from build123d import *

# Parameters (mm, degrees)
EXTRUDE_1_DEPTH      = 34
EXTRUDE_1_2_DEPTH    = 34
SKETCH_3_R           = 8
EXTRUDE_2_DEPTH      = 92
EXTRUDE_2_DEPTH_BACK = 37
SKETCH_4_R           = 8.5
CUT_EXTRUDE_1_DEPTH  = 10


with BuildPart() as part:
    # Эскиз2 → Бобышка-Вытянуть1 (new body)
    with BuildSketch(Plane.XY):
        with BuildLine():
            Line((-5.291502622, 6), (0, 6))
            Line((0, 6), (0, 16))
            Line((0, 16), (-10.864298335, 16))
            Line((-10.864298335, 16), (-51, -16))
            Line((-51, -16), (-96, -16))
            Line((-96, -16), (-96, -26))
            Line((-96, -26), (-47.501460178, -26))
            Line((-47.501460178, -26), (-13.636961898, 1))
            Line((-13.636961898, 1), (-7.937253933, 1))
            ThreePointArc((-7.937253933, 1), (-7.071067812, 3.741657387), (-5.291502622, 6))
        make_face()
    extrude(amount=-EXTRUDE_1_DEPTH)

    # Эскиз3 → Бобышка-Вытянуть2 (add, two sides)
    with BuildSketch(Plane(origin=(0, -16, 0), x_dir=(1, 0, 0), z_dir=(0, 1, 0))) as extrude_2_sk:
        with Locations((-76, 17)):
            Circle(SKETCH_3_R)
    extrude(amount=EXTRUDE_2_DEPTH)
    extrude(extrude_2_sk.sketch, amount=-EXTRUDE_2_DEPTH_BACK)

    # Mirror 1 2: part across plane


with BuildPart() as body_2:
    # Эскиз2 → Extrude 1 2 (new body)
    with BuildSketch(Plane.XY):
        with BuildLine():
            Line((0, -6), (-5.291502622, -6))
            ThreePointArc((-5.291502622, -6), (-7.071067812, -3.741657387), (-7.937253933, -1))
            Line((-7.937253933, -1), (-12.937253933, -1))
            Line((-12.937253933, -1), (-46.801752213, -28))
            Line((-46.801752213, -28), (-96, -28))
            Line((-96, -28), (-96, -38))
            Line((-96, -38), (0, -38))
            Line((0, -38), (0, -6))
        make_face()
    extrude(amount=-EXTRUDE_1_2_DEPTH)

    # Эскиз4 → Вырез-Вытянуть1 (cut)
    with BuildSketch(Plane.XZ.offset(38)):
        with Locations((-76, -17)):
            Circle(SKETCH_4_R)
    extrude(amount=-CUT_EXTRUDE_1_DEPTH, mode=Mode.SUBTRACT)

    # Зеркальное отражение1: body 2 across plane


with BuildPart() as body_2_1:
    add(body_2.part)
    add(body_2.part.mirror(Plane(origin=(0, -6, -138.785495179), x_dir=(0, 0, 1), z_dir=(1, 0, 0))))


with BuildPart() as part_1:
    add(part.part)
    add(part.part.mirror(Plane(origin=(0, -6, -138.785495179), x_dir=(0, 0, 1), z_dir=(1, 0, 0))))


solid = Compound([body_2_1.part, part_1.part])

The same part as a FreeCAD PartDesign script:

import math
import FreeCAD as App
import Part
import Sketcher
Q = App.Units.Quantity

doc = App.newDocument("Part")
body = doc.addObject("PartDesign::Body", "Body")

# Sketch on XY plane
sketch1 = body.newObject("Sketcher::SketchObject", "Sketch")
sketch1.AttachmentSupport = (doc.getObject("XY_Plane"), [""])
sketch1.MapMode = "FlatFace"
sketch1.addGeometry(Part.LineSegment(App.Vector(-5, 6, 0), App.Vector(0, 6, 0)), False)
sketch1.addGeometry(Part.LineSegment(App.Vector(0, 6, 0), App.Vector(0, 16, 0)), False)
sketch1.addGeometry(Part.LineSegment(App.Vector(0, 16, 0), App.Vector(-11, 16, 0)), False)
sketch1.addGeometry(Part.LineSegment(App.Vector(-11, 16, 0), App.Vector(-51, -16, 0)), False)
sketch1.addGeometry(Part.LineSegment(App.Vector(-51, -16, 0), App.Vector(-96, -16, 0)), False)
sketch1.addGeometry(Part.LineSegment(App.Vector(-96, -16, 0), App.Vector(-96, -26, 0)), False)
sketch1.addGeometry(Part.LineSegment(App.Vector(-96, -26, 0), App.Vector(-48, -26, 0)), False)
sketch1.addGeometry(Part.LineSegment(App.Vector(-48, -26, 0), App.Vector(-14, 1, 0)), False)
sketch1.addGeometry(Part.LineSegment(App.Vector(-14, 1, 0), App.Vector(-8, 1, 0)), False)
sketch1.addGeometry(Part.ArcOfCircle(Part.Circle(App.Vector(0, 0, 0), App.Vector(0, 0, 1), 8), math.radians(131), math.radians(173)), False)
sketch1.addConstraint(Sketcher.Constraint("Coincident", 0, 2, 1, 1))
sketch1.addConstraint(Sketcher.Constraint("Coincident", 1, 2, 2, 1))
sketch1.addConstraint(Sketcher.Constraint("Coincident", 2, 2, 3, 1))
sketch1.addConstraint(Sketcher.Constraint("Coincident", 3, 2, 4, 1))
sketch1.addConstraint(Sketcher.Constraint("Coincident", 4, 2, 5, 1))
sketch1.addConstraint(Sketcher.Constraint("Coincident", 5, 2, 6, 1))
sketch1.addConstraint(Sketcher.Constraint("Coincident", 6, 2, 7, 1))
sketch1.addConstraint(Sketcher.Constraint("Coincident", 7, 2, 8, 1))
sketch1.addConstraint(Sketcher.Constraint("Coincident", 8, 2, 9, 2))
sketch1.addConstraint(Sketcher.Constraint("Coincident", 9, 1, 0, 1))
sketch1.addConstraint(Sketcher.Constraint("Horizontal", 0))
sketch1.addConstraint(Sketcher.Constraint("Vertical", 1))
sketch1.addConstraint(Sketcher.Constraint("Horizontal", 2))
sketch1.addConstraint(Sketcher.Constraint("Horizontal", 4))
sketch1.addConstraint(Sketcher.Constraint("Vertical", 5))
sketch1.addConstraint(Sketcher.Constraint("Horizontal", 6))
sketch1.addConstraint(Sketcher.Constraint("Horizontal", 8))
sketch1.addConstraint(Sketcher.Constraint("Coincident", 9, 3, -1, 1))
sketch1.addConstraint(Sketcher.Constraint("PointOnObject", 0, 2, -2))
sketch1.addConstraint(Sketcher.Constraint("Parallel", 3, 7))
sketch1.addConstraint(Sketcher.Constraint("Equal", 1, 5))
sketch1.addConstraint(Sketcher.Constraint("Radius", 9, Q("8 mm")))
sketch1.addConstraint(Sketcher.Constraint("DistanceX", 4, 2, 4, 1, Q("45 mm")))
sketch1.addConstraint(Sketcher.Constraint("DistanceY", 1, 1, 1, 2, Q("10 mm")))
sketch1.addConstraint(Sketcher.Constraint("DistanceY", -1, 1, 0, 2, Q("6 mm")))
sketch1.addConstraint(Sketcher.Constraint("DistanceX", 3, 2, -1, 1, Q("51 mm")))
sketch1.addConstraint(Sketcher.Constraint("DistanceY", 3, 2, -1, 1, Q("16 mm")))
sketch1.addConstraint(Sketcher.Constraint("DistanceY", -1, 1, 7, 2, Q("1 mm")))
sketch1.addConstraint(Sketcher.Constraint("DistanceX", 2, 2, 2, 1, Q("10.864298 mm")))
sketch1.addConstraint(Sketcher.Constraint("DistanceX", 6, 1, 6, 2, Q("48.49854 mm")))
pad1 = body.newObject("PartDesign::Pad", "Pad")
pad1.Profile = sketch1
pad1.Length = 34
pad1.Reversed = True

# Sketch on XZ plane
sketch2 = body.newObject("Sketcher::SketchObject", "Sketch001")
sketch2.AttachmentSupport = (doc.getObject("XZ_Plane"), [""])
sketch2.MapMode = "FlatFace"
sketch2.AttachmentOffset = App.Placement(App.Vector(0, 0, 16), App.Rotation())
sketch2.addGeometry(Part.Circle(App.Vector(-76, -17, 0), App.Vector(0, 0, 1), 8), False)
sketch2.addConstraint(Sketcher.Constraint("Diameter", 0, Q("16 mm")))
sketch2.addConstraint(Sketcher.Constraint("DistanceX", 0, 3, -1, 1, Q("76 mm")))
sketch2.addConstraint(Sketcher.Constraint("DistanceY", 0, 3, -1, 1, Q("17 mm")))
pad2 = body.newObject("PartDesign::Pad", "Pad001")
pad2.Profile = sketch2
pad2.Type = "TwoLengths"
pad2.Length = 92
pad2.Length2 = 37
pad2.Reversed = True
body2 = doc.addObject("PartDesign::Body", "Body001")

# Sketch on XY plane
sketch3 = body2.newObject("Sketcher::SketchObject", "Sketch002")
sketch3.AttachmentSupport = (doc.getObject("XY_Plane001"), [""])
sketch3.MapMode = "FlatFace"
sketch3.addGeometry(Part.LineSegment(App.Vector(0, -6, 0), App.Vector(-5.3, -6, 0)), False)
sketch3.addGeometry(Part.ArcOfCircle(Part.Circle(App.Vector(0, 0, 0), App.Vector(0, 0, 1), 8), math.radians(-173), math.radians(-131)), False)
sketch3.addGeometry(Part.LineSegment(App.Vector(-7.9, -1, 0), App.Vector(-12.9, -1, 0)), False)
sketch3.addGeometry(Part.LineSegment(App.Vector(-12.9, -1, 0), App.Vector(-46.8, -28, 0)), False)
sketch3.addGeometry(Part.LineSegment(App.Vector(-46.8, -28, 0), App.Vector(-96, -28, 0)), False)
sketch3.addGeometry(Part.LineSegment(App.Vector(-96, -28, 0), App.Vector(-96, -38, 0)), False)
sketch3.addGeometry(Part.LineSegment(App.Vector(-96, -38, 0), App.Vector(0, -38, 0)), False)
sketch3.addGeometry(Part.LineSegment(App.Vector(0, -38, 0), App.Vector(0, -6, 0)), False)
sketch3.addConstraint(Sketcher.Constraint("Coincident", 0, 2, 1, 2))
sketch3.addConstraint(Sketcher.Constraint("Coincident", 1, 1, 2, 1))
sketch3.addConstraint(Sketcher.Constraint("Coincident", 2, 2, 3, 1))
sketch3.addConstraint(Sketcher.Constraint("Coincident", 3, 2, 4, 1))
sketch3.addConstraint(Sketcher.Constraint("Coincident", 4, 2, 5, 1))
sketch3.addConstraint(Sketcher.Constraint("Coincident", 5, 2, 6, 1))
sketch3.addConstraint(Sketcher.Constraint("Coincident", 6, 2, 7, 1))
sketch3.addConstraint(Sketcher.Constraint("Coincident", 7, 2, 0, 1))
sketch3.addConstraint(Sketcher.Constraint("Horizontal", 0))
sketch3.addConstraint(Sketcher.Constraint("Horizontal", 2))
sketch3.addConstraint(Sketcher.Constraint("Horizontal", 4))
sketch3.addConstraint(Sketcher.Constraint("Vertical", 5))
sketch3.addConstraint(Sketcher.Constraint("Horizontal", 6))
sketch3.addConstraint(Sketcher.Constraint("Vertical", 7))
sketch3.addConstraint(Sketcher.Constraint("Coincident", 1, 3, -1, 1))
sketch3.addConstraint(Sketcher.Constraint("PointOnObject", 6, 2, -2))
sketch3.addConstraint(Sketcher.Constraint("Radius", 1, Q("8 mm")))
sketch3.addConstraint(Sketcher.Constraint("DistanceX", 2, 2, 2, 1, Q("5 mm")))
sketch3.addConstraint(Sketcher.Constraint("DistanceX", 6, 1, 6, 2, Q("96 mm")))
sketch3.addConstraint(Sketcher.Constraint("DistanceY", 5, 2, 5, 1, Q("10 mm")))
sketch3.addConstraint(Sketcher.Constraint("DistanceY", 7, 1, 7, 2, Q("32 mm")))
sketch3.addConstraint(Sketcher.Constraint("DistanceY", 0, 2, -1, 1, Q("6 mm")))
sketch3.addConstraint(Sketcher.Constraint("DistanceY", 1, 1, -1, 1, Q("1 mm")))
sketch3.addConstraint(Sketcher.Constraint("DistanceX", 3, 2, 2, 2, Q("33.864498 mm")))
pad3 = body2.newObject("PartDesign::Pad", "Pad002")
pad3.Profile = sketch3
pad3.Length = 34
pad3.Reversed = True

# Sketch on XZ plane
sketch4 = body2.newObject("Sketcher::SketchObject", "Sketch003")
sketch4.AttachmentSupport = (doc.getObject("XZ_Plane001"), [""])
sketch4.MapMode = "FlatFace"
sketch4.AttachmentOffset = App.Placement(App.Vector(0, 0, 38), App.Rotation())
sketch4.addGeometry(Part.Circle(App.Vector(-76, -17, 0), App.Vector(0, 0, 1), 8), False)
sketch4.addConstraint(Sketcher.Constraint("Diameter", 0, Q("17 mm")))
sketch4.addConstraint(Sketcher.Constraint("DistanceX", 0, 3, -1, 1, Q("76 mm")))
sketch4.addConstraint(Sketcher.Constraint("DistanceY", 0, 3, -1, 1, Q("17 mm")))
pocket1 = body2.newObject("PartDesign::Pocket", "Pocket")
pocket1.Profile = sketch4
pocket1.Length = 10
body3 = doc.addObject("PartDesign::Body", "Body002")
doc.recompute()

body3.BaseFeature = body2
doc.recompute()

mirroring = doc.addObject("Part::Mirroring", "Mirroring")
mirroring.Source = body2
mirroring.Base = App.Vector(0, -6, -138.785495)
mirroring.Normal = App.Vector(1, 0, 0)
body4 = doc.addObject("PartDesign::Body", "Body003")
body4.BaseFeature = mirroring
boolean = body3.newObject("PartDesign::Boolean", "Boolean")
boolean.Type = "Fuse"
boolean.addObjects([body4])
doc.recompute()
body5 = doc.addObject("PartDesign::Body", "Body004")
doc.recompute()

body5.BaseFeature = body
doc.recompute()

mirroring2 = doc.addObject("Part::Mirroring", "Mirroring001")
mirroring2.Source = body
mirroring2.Base = App.Vector(0, -6, -138.785495)
mirroring2.Normal = App.Vector(1, 0, 0)
body6 = doc.addObject("PartDesign::Body", "Body005")
body6.BaseFeature = mirroring2
boolean2 = body5.newObject("PartDesign::Boolean", "Boolean001")
boolean2.Type = "Fuse"
boolean2.addObjects([body6])
doc.recompute()
mirroring.Visibility = False
mirroring2.Visibility = False

doc.recompute()
